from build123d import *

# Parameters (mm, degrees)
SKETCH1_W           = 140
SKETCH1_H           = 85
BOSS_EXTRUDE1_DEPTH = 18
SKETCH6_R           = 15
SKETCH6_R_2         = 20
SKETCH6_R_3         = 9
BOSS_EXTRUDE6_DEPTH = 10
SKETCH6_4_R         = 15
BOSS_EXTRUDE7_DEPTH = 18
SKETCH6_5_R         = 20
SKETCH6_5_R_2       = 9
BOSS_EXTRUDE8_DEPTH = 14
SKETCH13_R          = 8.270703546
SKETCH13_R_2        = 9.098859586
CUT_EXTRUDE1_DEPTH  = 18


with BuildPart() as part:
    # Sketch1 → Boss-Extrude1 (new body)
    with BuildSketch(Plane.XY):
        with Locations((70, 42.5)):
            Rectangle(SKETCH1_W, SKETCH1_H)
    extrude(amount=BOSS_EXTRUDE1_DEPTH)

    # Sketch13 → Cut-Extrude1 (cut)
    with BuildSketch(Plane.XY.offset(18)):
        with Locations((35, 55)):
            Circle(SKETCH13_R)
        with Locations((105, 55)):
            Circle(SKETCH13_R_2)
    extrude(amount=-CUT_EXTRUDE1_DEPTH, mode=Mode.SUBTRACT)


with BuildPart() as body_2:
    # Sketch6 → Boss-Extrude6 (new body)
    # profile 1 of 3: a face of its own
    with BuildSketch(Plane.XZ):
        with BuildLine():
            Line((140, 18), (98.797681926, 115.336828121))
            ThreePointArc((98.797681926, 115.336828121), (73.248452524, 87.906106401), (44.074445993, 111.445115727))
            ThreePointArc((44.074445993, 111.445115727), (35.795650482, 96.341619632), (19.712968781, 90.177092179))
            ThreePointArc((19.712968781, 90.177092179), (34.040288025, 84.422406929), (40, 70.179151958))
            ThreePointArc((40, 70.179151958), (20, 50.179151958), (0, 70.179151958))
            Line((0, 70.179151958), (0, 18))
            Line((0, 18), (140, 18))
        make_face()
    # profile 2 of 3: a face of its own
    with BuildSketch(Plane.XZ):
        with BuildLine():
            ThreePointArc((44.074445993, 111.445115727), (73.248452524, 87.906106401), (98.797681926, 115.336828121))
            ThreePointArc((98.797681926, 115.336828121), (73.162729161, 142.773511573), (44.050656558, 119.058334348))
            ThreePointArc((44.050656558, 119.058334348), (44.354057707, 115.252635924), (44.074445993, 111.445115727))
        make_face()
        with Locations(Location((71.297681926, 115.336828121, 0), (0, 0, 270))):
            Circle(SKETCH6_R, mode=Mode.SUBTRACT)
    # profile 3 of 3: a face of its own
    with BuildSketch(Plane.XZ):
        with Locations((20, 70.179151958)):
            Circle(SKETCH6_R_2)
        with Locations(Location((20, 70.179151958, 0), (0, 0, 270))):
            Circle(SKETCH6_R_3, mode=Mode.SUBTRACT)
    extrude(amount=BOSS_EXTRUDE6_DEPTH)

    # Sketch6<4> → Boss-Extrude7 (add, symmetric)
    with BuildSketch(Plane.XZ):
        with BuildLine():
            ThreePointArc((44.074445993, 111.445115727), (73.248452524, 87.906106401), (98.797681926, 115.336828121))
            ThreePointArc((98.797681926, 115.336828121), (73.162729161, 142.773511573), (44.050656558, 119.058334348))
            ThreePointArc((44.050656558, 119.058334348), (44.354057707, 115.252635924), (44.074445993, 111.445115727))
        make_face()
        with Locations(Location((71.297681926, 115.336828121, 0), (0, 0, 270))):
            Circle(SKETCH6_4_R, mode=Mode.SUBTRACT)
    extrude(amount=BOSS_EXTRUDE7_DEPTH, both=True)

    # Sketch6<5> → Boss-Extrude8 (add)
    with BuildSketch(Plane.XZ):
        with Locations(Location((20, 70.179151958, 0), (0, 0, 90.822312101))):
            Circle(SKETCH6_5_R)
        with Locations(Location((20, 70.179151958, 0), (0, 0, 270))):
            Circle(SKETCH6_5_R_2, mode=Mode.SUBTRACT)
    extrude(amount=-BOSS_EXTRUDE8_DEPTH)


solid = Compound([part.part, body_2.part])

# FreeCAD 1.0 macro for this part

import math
import FreeCAD as App
import Part
import Sketcher

V = App.Vector

doc = App.newDocument("Part")
params = doc.addObject("Spreadsheet::Sheet", "Params")
for row, (alias, value) in enumerate([
    ("sketch1_width", "140 mm"),
    ("sketch1_height", "85 mm"),
    ("pad1_length", "18 mm"),
    ("pocket1_length", "18 mm"),
    ("sketch3_diameter", "30 mm"),
    ("sketch3_diameter2", "18 mm"),
    ("sketch3_radius", "25 mm"),
    ("sketch3_radius2", "20 mm"),
    ("sketch3_radius3", "27.5 mm"),
    ("pad2_length", "10 mm"),
    ("sketch4_diameter", "30 mm"),
    ("sketch4_radius", "25 mm"),
    ("sketch4_radius2", "27.5 mm"),
    ("pad3_length", "36 mm"),
    ("sketch5_diameter", "40 mm"),
    ("sketch5_diameter2", "18 mm"),
    ("pad4_length", "14 mm"),
], start=1):
    params.set(f"A{row}", alias)
    params.set(f"B{row}", "=" + value)
    params.setAlias(f"B{row}", alias)

body = doc.addObject("PartDesign::Body", "Body")

# Sketch on XY plane
sketch1 = body.newObject("Sketcher::SketchObject", "Sketch")
sketch1.AttachmentSupport = (doc.getObject("XY_Plane"), [""])
sketch1.MapMode = "FlatFace"
sketch1.addGeometry(Part.LineSegment(V(0, 85, 0), V(0, 0, 0)), False)
sketch1.addGeometry(Part.LineSegment(V(0, 0, 0), V(140, 0, 0)), False)
sketch1.addGeometry(Part.LineSegment(V(140, 0, 0), V(140, 85, 0)), False)
sketch1.addGeometry(Part.LineSegment(V(140, 85, 0), V(0, 85, 0)), False)
sketch1.addConstraint(Sketcher.Constraint("Coincident", 0, 2, 1, 1))
sketch1.addConstraint(Sketcher.Constraint("Coincident", 1, 2, 2, 1))
sketch1.addConstraint(Sketcher.Constraint("Coincident", 2, 2, 3, 1))
sketch1.addConstraint(Sketcher.Constraint("Coincident", 3, 2, 0, 1))
sketch1.addConstraint(Sketcher.Constraint("Vertical", 0))
sketch1.addConstraint(Sketcher.Constraint("Horizontal", 1))
sketch1.addConstraint(Sketcher.Constraint("Vertical", 2))
sketch1.addConstraint(Sketcher.Constraint("Horizontal", 3))
sketch1.addConstraint(Sketcher.Constraint("Coincident", 0, 2, -1, 1))
sketch1.addConstraint(Sketcher.Constraint("DistanceX", 1, 1, 1, 2, 140.0))
sketch1.addConstraint(Sketcher.Constraint("DistanceY", 0, 2, 0, 1, 85.0))
sketch1.setExpression("Constraints[9]", "Params.sketch1_width")
sketch1.setExpression("Constraints[10]", "Params.sketch1_height")
pad1 = body.newObject("PartDesign::Pad", "Pad")
pad1.Profile = sketch1
pad1.setExpression("Length", "Params.pad1_length")

# Sketch on XY plane
sketch2 = body.newObject("Sketcher::SketchObject", "Sketch001")
sketch2.AttachmentSupport = (doc.getObject("XY_Plane"), [""])
sketch2.MapMode = "FlatFace"
sketch2.AttachmentOffset = App.Placement(V(0, 0, 18), App.Rotation())
sketch2.addGeometry(Part.Circle(V(35, 55, 0), V(0, 0, 1), 8.270704), False)
sketch2.addGeometry(Part.Circle(V(105, 55, 0), V(0, 0, 1), 9.09886), False)
sketch2.addConstraint(Sketcher.Constraint("Horizontal", 0, 3, 1, 3))
sketch2.addConstraint(Sketcher.Constraint("DistanceX", -1, 1, 0, 3, 35.0))
sketch2.addConstraint(Sketcher.Constraint("DistanceY", -1, 1, 0, 3, 55.0))
sketch2.addConstraint(Sketcher.Constraint("DistanceX", -1, 1, 1, 3, 105.0))
sketch2.addConstraint(Sketcher.Constraint("Diameter", 1, 18.197719))
sketch2.addConstraint(Sketcher.Constraint("Diameter", 0, 16.541407))
pocket1 = body.newObject("PartDesign::Pocket", "Pocket")
pocket1.Profile = sketch2
pocket1.setExpression("Length", "Params.pocket1_length")
body2 = doc.addObject("PartDesign::Body", "Body001")

# Sketch on XZ plane
sketch3 = body2.newObject("Sketcher::SketchObject", "Sketch002")
sketch3.AttachmentSupport = (doc.getObject("XZ_Plane001"), [""])
sketch3.MapMode = "FlatFace"
sketch3.addGeometry(Part.LineSegment(V(140, 18, 0), V(98.797682, 115.336828, 0)), False)
sketch3.addGeometry(Part.ArcOfCircle(Part.Circle(V(71.297682, 115.336828, 0), V(0, 0, 1), 27.5), math.radians(0), math.radians(172.222442)), False)
sketch3.addGeometry(Part.ArcOfCircle(Part.Circle(V(19.35418, 115.174517, 0), V(0, 0, 1), 25), math.radians(-8.579182), math.radians(8.937251)), False)
sketch3.addGeometry(Part.ArcOfCircle(Part.Circle(V(19.35418, 115.174517, 0), V(0, 0, 1), 25), math.radians(-89.177688), math.radians(-8.579182)), False)
sketch3.addGeometry(Part.ArcOfCircle(Part.Circle(V(20, 70.179152, 0), V(0, 0, 1), 20), math.radians(90.822312), math.radians(180)), False)
sketch3.addGeometry(Part.LineSegment(V(0, 70.179152, 0), V(0, 18, 0)), False)
sketch3.addGeometry(Part.LineSegment(V(0, 18, 0), V(140, 18, 0)), False)
sketch3.addGeometry(Part.Circle(V(71.297682, 115.336828, 0), V(0, 0, 1), 15), False)
sketch3.addGeometry(Part.Circle(V(20, 70.179152, 0), V(0, 0, 1), 9), False)
sketch3.addConstraint(Sketcher.Constraint("Coincident", 0, 2, 1, 1))
sketch3.addConstraint(Sketcher.Constraint("Coincident", 1, 2, 2, 2))
sketch3.addConstraint(Sketcher.Constraint("Tangent", 2, 1, 3, 2))
sketch3.addConstraint(Sketcher.Constraint("Tangent", 3, 1, 4, 1))
sketch3.addConstraint(Sketcher.Constraint("Tangent", 4, 2, 5, 1))
sketch3.addConstraint(Sketcher.Constraint("Coincident", 5, 2, 6, 1))
sketch3.addConstraint(Sketcher.Constraint("Coincident", 6, 2, 0, 1))
sketch3.addConstraint(Sketcher.Constraint("Vertical", 5))
sketch3.addConstraint(Sketcher.Constraint("Horizontal", 6))
sketch3.addConstraint(Sketcher.Constraint("Coincident", 7, 3, 1, 3))
sketch3.addConstraint(Sketcher.Constraint("Coincident", 8, 3, 4, 3))
sketch3.addConstraint(Sketcher.Constraint("Equal", 2, 3))
sketch3.addConstraint(Sketcher.Constraint("PointOnObject", 4, 2, -2))
sketch3.addConstraint(Sketcher.Constraint("Horizontal", 7, 3, 0, 2))
sketch3.addConstraint(Sketcher.Constraint("Diameter", 7, 30.0))
sketch3.addConstraint(Sketcher.Constraint("Diameter", 8, 18.0))
sketch3.addConstraint(Sketcher.Constraint("Radius", 2, 25.0))
sketch3.addConstraint(Sketcher.Constraint("Radius", 4, 20.0))
sketch3.addConstraint(Sketcher.Constraint("Radius", 1, 27.5))
sketch3.addConstraint(Sketcher.Constraint("DistanceX", 6, 1, 6, 2, 140.0))
sketch3.addConstraint(Sketcher.Constraint("DistanceY", -1, 1, 5, 2, 18.0))
sketch3.addConstraint(Sketcher.Constraint("DistanceY", 5, 2, 5, 1, 52.179152))
sketch3.addConstraint(Sketcher.Constraint("DistanceY", 2, 1, 3, 3, 3.729402))
sketch3.addConstraint(Sketcher.Constraint("DistanceX", -1, 1, 1, 3, 71.297682))
sketch3.addConstraint(Sketcher.Constraint("DistanceY", -1, 1, 1, 3, 115.336828))
sketch3.addConstraint(Sketcher.Constraint("DistanceX", -1, 1, 2, 3, 19.35418))
sketch3.setExpression("Constraints[14]", "Params.sketch3_diameter")
sketch3.setExpression("Constraints[15]", "Params.sketch3_diameter2")
sketch3.setExpression("Constraints[16]", "Params.sketch3_radius")
sketch3.setExpression("Constraints[17]", "Params.sketch3_radius2")
sketch3.setExpression("Constraints[18]", "Params.sketch3_radius3")
pad2 = body2.newObject("PartDesign::Pad", "Pad001")
pad2.Profile = sketch3
pad2.setExpression("Length", "Params.pad2_length")

# Sketch on XZ plane
sketch4 = body2.newObject("Sketcher::SketchObject", "Sketch003")
sketch4.AttachmentSupport = (doc.getObject("XZ_Plane001"), [""])
sketch4.MapMode = "FlatFace"
sketch4.addGeometry(Part.ArcOfCircle(Part.Circle(V(71.297682, 115.336828, 0), V(0, 0, 1), 27.5), math.radians(-171.864373), math.radians(0)), False)
sketch4.addGeometry(Part.ArcOfCircle(Part.Circle(V(71.297682, 115.336828, 0), V(0, 0, 1), 27.5), math.radians(0), math.radians(172.222442)), False)
sketch4.addGeometry(Part.ArcOfCircle(Part.Circle(V(19.35418, 115.174517, 0), V(0, 0, 1), 25), math.radians(-8.579182), math.radians(8.937251)), False)
sketch4.addGeometry(Part.Circle(V(71.297682, 115.336828, 0), V(0, 0, 1), 15), False)
sketch4.addConstraint(Sketcher.Constraint("Tangent", 0, 2, 1, 1))
sketch4.addConstraint(Sketcher.Constraint("Coincident", 1, 2, 2, 2))
sketch4.addConstraint(Sketcher.Constraint("Coincident", 2, 1, 0, 1))
sketch4.addConstraint(Sketcher.Constraint("Coincident", 3, 3, 0, 3))
sketch4.addConstraint(Sketcher.Constraint("Equal", 0, 1))
sketch4.addConstraint(Sketcher.Constraint("Horizontal", 3, 3, 0, 2))
sketch4.addConstraint(Sketcher.Constraint("Diameter", 3, 30.0))
sketch4.addConstraint(Sketcher.Constraint("Radius", 2, 25.0))
sketch4.addConstraint(Sketcher.Constraint("Radius", 0, 27.5))
sketch4.addConstraint(Sketcher.Constraint("DistanceY", 2, 1, 2, 3, 3.729402))
sketch4.addConstraint(Sketcher.Constraint("DistanceX", -1, 1, 0, 3, 71.297682))
sketch4.addConstraint(Sketcher.Constraint("DistanceY", -1, 1, 0, 3, 115.336828))
sketch4.addConstraint(Sketcher.Constraint("DistanceX", -1, 1, 2, 3, 19.35418))
sketch4.setExpression("Constraints[6]", "Params.sketch4_diameter")
sketch4.setExpression("Constraints[7]", "Params.sketch4_radius")
sketch4.setExpression("Constraints[8]", "Params.sketch4_radius2")
pad3 = body2.newObject("PartDesign::Pad", "Pad002")
pad3.Profile = sketch4
pad3.setExpression("Length", "Params.pad3_length")
pad3.Midplane = True

# Sketch on XZ plane
sketch5 = body2.newObject("Sketcher::SketchObject", "Sketch004")
sketch5.AttachmentSupport = (doc.getObject("XZ_Plane001"), [""])
sketch5.MapMode = "FlatFace"
sketch5.addGeometry(Part.Circle(V(20, 70.179152, 0), V(0, 0, 1), 20), False)
sketch5.addGeometry(Part.Circle(V(20, 70.179152, 0), V(0, 0, 1), 9), False)
sketch5.addConstraint(Sketcher.Constraint("Coincident", 1, 3, 0, 3))
sketch5.addConstraint(Sketcher.Constraint("Diameter", 0, 40.0))
sketch5.addConstraint(Sketcher.Constraint("Diameter", 1, 18.0))
sketch5.addConstraint(Sketcher.Constraint("DistanceX", -1, 1, 0, 3, 20.0))
sketch5.addConstraint(Sketcher.Constraint("DistanceY", -1, 1, 0, 3, 70.179152))
sketch5.setExpression("Constraints[1]", "Params.sketch5_diameter")
sketch5.setExpression("Constraints[2]", "Params.sketch5_diameter2")
pad4 = body2.newObject("PartDesign::Pad", "Pad003")
pad4.Profile = sketch5
pad4.setExpression("Length", "Params.pad4_length")
pad4.Reversed = True

doc.recompute()
